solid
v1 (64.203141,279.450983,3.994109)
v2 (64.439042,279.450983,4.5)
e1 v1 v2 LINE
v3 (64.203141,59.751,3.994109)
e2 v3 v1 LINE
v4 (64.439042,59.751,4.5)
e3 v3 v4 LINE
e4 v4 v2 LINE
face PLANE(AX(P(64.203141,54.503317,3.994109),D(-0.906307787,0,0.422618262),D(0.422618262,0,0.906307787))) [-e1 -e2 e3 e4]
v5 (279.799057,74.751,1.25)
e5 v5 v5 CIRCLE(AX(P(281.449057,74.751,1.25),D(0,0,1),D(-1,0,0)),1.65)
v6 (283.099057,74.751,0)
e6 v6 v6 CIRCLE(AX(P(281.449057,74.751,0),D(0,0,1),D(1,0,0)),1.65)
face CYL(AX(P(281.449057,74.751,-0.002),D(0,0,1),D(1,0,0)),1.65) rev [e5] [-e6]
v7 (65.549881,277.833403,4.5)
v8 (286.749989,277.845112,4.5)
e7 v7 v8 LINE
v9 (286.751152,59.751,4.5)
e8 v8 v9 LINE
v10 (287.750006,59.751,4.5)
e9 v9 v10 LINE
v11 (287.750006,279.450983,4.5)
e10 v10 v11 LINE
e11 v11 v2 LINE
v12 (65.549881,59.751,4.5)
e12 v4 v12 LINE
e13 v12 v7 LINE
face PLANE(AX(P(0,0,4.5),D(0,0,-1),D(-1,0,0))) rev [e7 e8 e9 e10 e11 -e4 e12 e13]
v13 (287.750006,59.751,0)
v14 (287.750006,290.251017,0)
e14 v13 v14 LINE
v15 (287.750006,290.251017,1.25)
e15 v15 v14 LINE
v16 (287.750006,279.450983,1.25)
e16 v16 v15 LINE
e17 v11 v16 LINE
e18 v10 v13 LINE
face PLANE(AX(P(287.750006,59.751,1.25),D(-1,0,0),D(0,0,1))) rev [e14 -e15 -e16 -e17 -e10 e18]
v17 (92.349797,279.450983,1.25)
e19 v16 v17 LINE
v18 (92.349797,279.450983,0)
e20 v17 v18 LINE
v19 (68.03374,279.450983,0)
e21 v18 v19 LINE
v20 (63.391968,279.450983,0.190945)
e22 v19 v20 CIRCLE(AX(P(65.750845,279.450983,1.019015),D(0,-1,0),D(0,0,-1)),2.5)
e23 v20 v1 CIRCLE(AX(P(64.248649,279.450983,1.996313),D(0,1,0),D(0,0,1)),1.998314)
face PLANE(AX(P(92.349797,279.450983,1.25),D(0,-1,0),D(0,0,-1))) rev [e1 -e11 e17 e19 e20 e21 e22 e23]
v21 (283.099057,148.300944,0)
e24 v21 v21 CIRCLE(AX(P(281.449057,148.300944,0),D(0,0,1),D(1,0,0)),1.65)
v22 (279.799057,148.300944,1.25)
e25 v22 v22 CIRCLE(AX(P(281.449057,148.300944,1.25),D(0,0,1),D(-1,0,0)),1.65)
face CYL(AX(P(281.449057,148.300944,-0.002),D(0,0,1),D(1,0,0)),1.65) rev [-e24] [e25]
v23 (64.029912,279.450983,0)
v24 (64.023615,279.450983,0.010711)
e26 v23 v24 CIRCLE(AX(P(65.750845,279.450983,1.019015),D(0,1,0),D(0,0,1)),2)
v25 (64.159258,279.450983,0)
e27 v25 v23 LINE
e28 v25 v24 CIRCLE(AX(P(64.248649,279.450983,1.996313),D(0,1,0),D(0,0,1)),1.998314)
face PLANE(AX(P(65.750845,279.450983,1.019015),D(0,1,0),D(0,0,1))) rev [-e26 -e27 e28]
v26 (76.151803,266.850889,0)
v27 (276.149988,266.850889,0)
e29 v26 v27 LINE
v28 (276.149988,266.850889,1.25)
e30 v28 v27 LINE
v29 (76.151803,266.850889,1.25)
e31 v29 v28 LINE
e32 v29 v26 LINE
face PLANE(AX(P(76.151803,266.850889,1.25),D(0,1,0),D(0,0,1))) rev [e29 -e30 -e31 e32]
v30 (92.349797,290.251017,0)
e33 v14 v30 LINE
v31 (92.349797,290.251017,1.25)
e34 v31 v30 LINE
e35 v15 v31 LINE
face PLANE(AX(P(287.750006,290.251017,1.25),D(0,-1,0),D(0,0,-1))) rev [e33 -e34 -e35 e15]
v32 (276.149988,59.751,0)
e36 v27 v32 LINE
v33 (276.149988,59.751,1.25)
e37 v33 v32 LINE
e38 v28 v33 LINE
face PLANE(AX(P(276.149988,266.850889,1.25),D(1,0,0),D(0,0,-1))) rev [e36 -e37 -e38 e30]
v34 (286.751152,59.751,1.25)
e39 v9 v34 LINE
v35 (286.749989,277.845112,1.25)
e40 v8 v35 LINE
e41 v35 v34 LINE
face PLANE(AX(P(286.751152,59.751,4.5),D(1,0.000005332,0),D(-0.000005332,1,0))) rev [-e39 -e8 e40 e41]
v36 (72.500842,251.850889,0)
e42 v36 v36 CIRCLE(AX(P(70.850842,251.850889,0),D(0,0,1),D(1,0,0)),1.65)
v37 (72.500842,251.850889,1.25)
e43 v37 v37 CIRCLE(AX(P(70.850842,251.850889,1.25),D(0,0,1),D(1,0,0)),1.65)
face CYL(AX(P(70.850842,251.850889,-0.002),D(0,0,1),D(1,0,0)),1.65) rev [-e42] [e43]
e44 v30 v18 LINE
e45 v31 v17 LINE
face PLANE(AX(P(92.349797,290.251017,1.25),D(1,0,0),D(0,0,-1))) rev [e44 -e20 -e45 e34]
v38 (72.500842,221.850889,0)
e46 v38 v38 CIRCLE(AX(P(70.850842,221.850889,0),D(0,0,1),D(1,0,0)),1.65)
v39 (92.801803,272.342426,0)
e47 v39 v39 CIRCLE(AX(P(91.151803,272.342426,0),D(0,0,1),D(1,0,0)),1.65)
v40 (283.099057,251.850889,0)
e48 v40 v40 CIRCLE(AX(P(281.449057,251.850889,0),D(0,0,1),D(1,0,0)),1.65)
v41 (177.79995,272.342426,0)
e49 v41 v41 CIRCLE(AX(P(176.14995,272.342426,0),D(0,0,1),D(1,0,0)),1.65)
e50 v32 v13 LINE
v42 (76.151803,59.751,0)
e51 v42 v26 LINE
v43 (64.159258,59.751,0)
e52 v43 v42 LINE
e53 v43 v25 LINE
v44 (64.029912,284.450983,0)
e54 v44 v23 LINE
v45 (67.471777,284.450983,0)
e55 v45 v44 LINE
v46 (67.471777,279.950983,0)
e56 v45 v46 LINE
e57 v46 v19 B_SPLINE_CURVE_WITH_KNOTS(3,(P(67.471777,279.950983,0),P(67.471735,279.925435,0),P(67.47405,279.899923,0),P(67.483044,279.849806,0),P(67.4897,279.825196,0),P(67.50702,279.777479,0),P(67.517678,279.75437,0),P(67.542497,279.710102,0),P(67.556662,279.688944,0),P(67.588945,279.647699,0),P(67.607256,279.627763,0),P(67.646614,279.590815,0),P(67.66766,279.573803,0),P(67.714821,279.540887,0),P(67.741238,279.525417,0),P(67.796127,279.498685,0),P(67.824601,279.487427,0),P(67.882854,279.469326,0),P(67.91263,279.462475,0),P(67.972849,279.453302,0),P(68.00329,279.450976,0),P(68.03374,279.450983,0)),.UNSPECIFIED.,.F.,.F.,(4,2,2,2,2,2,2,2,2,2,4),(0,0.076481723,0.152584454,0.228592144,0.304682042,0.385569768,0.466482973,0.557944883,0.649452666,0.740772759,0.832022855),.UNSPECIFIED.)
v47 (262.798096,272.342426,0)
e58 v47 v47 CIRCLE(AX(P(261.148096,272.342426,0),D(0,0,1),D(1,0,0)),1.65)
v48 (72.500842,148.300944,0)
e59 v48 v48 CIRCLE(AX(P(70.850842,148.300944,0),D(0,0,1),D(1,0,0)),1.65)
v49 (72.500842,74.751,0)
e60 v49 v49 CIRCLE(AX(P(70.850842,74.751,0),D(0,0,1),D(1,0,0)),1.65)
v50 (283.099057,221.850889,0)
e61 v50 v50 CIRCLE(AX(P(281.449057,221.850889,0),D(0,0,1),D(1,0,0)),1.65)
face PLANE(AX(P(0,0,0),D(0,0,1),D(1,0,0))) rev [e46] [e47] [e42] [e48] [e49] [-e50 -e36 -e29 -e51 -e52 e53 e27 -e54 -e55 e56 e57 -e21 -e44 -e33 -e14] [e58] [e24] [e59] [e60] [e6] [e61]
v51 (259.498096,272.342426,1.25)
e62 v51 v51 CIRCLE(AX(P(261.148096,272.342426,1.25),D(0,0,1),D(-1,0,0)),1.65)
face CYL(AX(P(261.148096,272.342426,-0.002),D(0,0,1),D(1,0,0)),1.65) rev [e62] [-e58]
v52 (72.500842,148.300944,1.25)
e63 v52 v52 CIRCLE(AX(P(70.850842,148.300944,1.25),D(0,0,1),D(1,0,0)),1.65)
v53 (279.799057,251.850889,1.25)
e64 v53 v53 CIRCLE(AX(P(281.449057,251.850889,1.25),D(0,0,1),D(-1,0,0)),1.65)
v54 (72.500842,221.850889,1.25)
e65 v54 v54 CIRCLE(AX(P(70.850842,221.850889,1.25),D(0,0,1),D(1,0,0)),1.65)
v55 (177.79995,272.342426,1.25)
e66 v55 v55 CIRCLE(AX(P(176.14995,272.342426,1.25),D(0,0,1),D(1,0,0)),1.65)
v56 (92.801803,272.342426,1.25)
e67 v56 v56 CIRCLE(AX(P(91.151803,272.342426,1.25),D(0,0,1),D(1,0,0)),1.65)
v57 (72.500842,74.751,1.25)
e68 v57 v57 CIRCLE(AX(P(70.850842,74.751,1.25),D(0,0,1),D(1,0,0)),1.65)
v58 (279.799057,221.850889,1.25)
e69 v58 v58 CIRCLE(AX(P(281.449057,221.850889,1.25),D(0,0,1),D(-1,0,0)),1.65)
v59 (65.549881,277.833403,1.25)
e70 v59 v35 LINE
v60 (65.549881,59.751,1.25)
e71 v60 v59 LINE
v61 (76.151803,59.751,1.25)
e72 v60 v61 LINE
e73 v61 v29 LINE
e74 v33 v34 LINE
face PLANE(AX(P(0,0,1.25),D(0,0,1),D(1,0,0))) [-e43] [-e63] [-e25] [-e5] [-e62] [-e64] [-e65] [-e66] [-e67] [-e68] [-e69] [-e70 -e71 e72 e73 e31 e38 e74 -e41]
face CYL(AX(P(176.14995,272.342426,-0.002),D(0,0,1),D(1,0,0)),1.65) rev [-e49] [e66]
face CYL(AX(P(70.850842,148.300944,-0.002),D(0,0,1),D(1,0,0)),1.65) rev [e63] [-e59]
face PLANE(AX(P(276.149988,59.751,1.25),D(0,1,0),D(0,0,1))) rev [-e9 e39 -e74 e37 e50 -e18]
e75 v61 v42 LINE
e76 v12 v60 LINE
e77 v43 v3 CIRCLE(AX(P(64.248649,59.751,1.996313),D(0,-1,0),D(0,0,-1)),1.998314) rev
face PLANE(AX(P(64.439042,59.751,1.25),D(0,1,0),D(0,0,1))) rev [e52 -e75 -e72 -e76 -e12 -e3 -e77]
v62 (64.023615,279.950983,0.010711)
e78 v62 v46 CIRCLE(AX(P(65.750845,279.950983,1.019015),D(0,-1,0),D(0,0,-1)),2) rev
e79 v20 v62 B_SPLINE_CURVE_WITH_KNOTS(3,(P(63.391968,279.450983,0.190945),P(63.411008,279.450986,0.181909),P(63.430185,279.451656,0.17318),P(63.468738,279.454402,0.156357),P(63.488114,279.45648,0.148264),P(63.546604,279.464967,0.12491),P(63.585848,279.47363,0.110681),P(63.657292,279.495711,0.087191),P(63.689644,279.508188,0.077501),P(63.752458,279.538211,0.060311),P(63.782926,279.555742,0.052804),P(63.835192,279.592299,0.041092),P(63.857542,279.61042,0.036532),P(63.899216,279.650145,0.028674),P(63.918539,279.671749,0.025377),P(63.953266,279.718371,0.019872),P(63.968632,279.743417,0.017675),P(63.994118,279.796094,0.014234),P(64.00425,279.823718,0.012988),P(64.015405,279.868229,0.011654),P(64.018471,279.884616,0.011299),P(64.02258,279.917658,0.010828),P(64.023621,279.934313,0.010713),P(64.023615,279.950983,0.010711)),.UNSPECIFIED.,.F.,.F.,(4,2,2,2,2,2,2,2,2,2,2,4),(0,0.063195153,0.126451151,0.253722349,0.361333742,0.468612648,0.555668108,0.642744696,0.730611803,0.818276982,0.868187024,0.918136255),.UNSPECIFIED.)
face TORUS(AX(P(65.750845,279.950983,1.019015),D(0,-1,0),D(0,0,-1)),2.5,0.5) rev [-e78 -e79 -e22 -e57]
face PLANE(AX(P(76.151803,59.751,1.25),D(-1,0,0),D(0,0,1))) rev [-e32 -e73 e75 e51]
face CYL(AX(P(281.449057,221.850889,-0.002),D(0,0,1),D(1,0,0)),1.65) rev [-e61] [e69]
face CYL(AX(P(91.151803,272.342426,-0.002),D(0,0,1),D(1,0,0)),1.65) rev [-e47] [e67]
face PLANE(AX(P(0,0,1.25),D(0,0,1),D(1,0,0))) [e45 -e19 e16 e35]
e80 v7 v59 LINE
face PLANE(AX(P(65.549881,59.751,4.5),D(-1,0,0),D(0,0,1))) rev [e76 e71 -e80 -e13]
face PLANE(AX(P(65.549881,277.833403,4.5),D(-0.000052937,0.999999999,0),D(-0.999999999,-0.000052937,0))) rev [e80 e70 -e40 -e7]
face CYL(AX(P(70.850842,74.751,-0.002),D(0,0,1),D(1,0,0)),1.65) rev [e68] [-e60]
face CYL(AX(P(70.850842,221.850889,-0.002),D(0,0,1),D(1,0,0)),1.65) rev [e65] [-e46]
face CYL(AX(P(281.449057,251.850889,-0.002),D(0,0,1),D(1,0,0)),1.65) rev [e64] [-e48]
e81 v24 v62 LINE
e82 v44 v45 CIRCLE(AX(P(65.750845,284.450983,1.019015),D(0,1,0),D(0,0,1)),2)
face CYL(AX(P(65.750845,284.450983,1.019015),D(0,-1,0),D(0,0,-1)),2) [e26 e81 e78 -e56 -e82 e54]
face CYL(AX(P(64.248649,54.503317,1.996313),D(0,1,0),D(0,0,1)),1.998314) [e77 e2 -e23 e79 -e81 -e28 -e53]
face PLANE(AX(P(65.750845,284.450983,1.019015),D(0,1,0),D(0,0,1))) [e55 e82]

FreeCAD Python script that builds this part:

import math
import FreeCAD as App
import Part
import Sketcher

V = App.Vector
Q = App.Units.Quantity


def edges_at(feature, points):
    """Names of the edges that pass closest to the given points."""
    edges = feature.Shape.Edges
    near = lambda p: min(range(len(edges)), key=lambda i: edges[i].distToShape(Part.Vertex(*p))[0])
    return sorted({f"Edge{near(p) + 1}" for p in points})


def add_polygon(sketch, points):
    """Adds a closed chain of lines whose ends are joined by coincident constraints."""
    first, n = sketch.GeometryCount, len(points)
    for a, b in zip(points, points[1:] + points[:1]):
        sketch.addGeometry(Part.LineSegment(App.Vector(*a, 0), App.Vector(*b, 0)), False)
    for i in range(n):
        sketch.addConstraint(Sketcher.Constraint("Coincident", first + i, 2, first + (i + 1) % n, 1))

doc = App.newDocument("Part")
body = doc.addObject("PartDesign::Body", "Body")

# Sketch on XY plane
sketch1 = body.newObject("Sketcher::SketchObject", "Sketch")
sketch1.AttachmentSupport = (doc.getObject("XY_Plane"), [""])
sketch1.MapMode = "FlatFace"
add_polygon(sketch1, [(76.151803, 59.751), (76.151803, 266.850889), (276.149988, 266.850889), (276.149988, 59.751), (287.750006, 59.751), (287.750006, 290.251017), (92.349797, 290.251017), (92.349797, 279.450983), (64.949997, 279.450983), (64.439042, 59.751)])  # lines 0-9
sketch1.addConstraint([
    Sketcher.Constraint("Vertical", 0),
    Sketcher.Constraint("Horizontal", 1),
    Sketcher.Constraint("Vertical", 2),
    Sketcher.Constraint("Horizontal", 3),
    Sketcher.Constraint("Vertical", 4),
    Sketcher.Constraint("Horizontal", 5),
    Sketcher.Constraint("Vertical", 6),
    Sketcher.Constraint("Horizontal", 7),
    Sketcher.Constraint("Horizontal", 9),
    Sketcher.Constraint("Horizontal", 3, 2, 8, 2),
    Sketcher.Constraint("DistanceX", 7, 2, 7, 1, Q("27.399801 mm")),
    Sketcher.Constraint("DistanceY", -1, 1, 2, 2, Q("59.751 mm")),
    Sketcher.Constraint("DistanceX", 5, 2, 5, 1, Q("195.400208 mm")),
    Sketcher.Constraint("DistanceX", 9, 1, 9, 2, Q("11.712761 mm")),
    Sketcher.Constraint("DistanceY", 0, 1, 0, 2, Q("207.099888 mm")),
    Sketcher.Constraint("DistanceX", 1, 1, 1, 2, Q("199.998185 mm")),
    Sketcher.Constraint("DistanceX", 3, 1, 3, 2, Q("11.600018 mm")),
    Sketcher.Constraint("DistanceY", 4, 1, 4, 2, Q("230.500016 mm")),
    Sketcher.Constraint("DistanceY", 6, 2, 6, 1, Q("10.800034 mm")),
    Sketcher.Constraint("DistanceX", -1, 1, 1, 2, Q("276.149988 mm")),
])
pad1 = body.newObject("PartDesign::Pad", "Pad")
pad1.Profile = sketch1
pad1.Length = 1.25

# Sketch on XY plane
sketch2 = body.newObject("Sketcher::SketchObject", "Sketch001")
sketch2.AttachmentSupport = (doc.getObject("XY_Plane"), [""])
sketch2.MapMode = "FlatFace"
sketch2.AttachmentOffset = App.Placement(V(0, 0, 1.25), App.Rotation())
add_polygon(sketch2, [(65.549881, 59.751), (65.549881, 277.833403), (286.749989, 277.845112), (286.751152, 59.751), (287.750006, 59.751), (287.750006, 279.450983), (64.949997, 279.450983), (64.439042, 59.751)])  # lines 0-7
sketch2.addConstraint([
    Sketcher.Constraint("Vertical", 0),
    Sketcher.Constraint("Horizontal", 3),
    Sketcher.Constraint("Vertical", 4),
    Sketcher.Constraint("Horizontal", 5),
    Sketcher.Constraint("Horizontal", 7),
    Sketcher.Constraint("Horizontal", 3, 2, 6, 2),
    Sketcher.Constraint("DistanceY", -1, 1, 2, 2, Q("59.751 mm")),
    Sketcher.Constraint("DistanceX", 5, 2, 5, 1, Q("222.800009 mm")),
    Sketcher.Constraint("DistanceX", 7, 1, 7, 2, Q("1.110839 mm")),
    Sketcher.Constraint("Distance", 1, Q("221.200108 mm")),
    Sketcher.Constraint("Distance", 2, Q("218.094112 mm")),
    Sketcher.Constraint("DistanceX", 3, 1, 3, 2, Q("0.998854 mm")),
    Sketcher.Constraint("DistanceY", 0, 1, 0, 2, Q("218.082402 mm")),
    Sketcher.Constraint("DistanceY", 4, 1, 4, 2, Q("219.699983 mm")),
    Sketcher.Constraint("DistanceX", -1, 1, 0, 2, Q("65.549881 mm")),
    Sketcher.Constraint("DistanceX", -1, 1, 2, 2, Q("286.751152 mm")),
])
pad2 = body.newObject("PartDesign::Pad", "Pad001")
pad2.Profile = sketch2
pad2.Length = 3.25

# Sketch on XZ plane
sketch3 = body.newObject("Sketcher::SketchObject", "Sketch002")
sketch3.AttachmentSupport = (doc.getObject("XZ_Plane"), [""])
sketch3.MapMode = "FlatFace"
sketch3.AttachmentOffset = App.Placement(V(0, 0, -279.450983), App.Rotation())
sketch3.addGeometry([
    Part.LineSegment(V(64.203141, 3.994109, 0), V(64.439042, 4.5, 0)),  # 0
    Part.LineSegment(V(64.439042, 4.5, 0), V(64.949997, 4.5, 0)),  # 1
    Part.LineSegment(V(64.949997, 4.5, 0), V(64.949997, 0, 0)),  # 2
    Part.LineSegment(V(64.949997, 0, 0), V(64.159258, 0, 0)),  # 3
    Part.ArcOfCircle(Part.Circle(V(64.248649, 1.996313, 0), V(0, 0, 1), 1.998314), math.radians(91.304896), math.radians(267.436125)),  # 4
], False)
sketch3.addConstraint([
    Sketcher.Constraint("Coincident", 0, 2, 1, 1),
    Sketcher.Constraint("Coincident", 1, 2, 2, 1),
    Sketcher.Constraint("Coincident", 2, 2, 3, 1),
    Sketcher.Constraint("Coincident", 3, 2, 4, 2),
    Sketcher.Constraint("Coincident", 4, 1, 0, 1),
    Sketcher.Constraint("Horizontal", 1),
    Sketcher.Constraint("Vertical", 2),
    Sketcher.Constraint("Horizontal", 3),
    Sketcher.Constraint("PointOnObject", 2, 2, -1),
    Sketcher.Constraint("Angle", 0, Q("65 deg")),
    Sketcher.Constraint("DistanceY", 2, 2, 2, 1, Q("4.5 mm")),
    Sketcher.Constraint("Radius", 4, Q("1.998314 mm")),
    Sketcher.Constraint("DistanceX", 3, 2, 3, 1, Q("0.790739 mm")),
    Sketcher.Constraint("DistanceX", 4, 1, 0, 2, Q("0.235901 mm")),
    Sketcher.Constraint("DistanceX", 1, 1, 1, 2, Q("0.510954 mm")),
    Sketcher.Constraint("DistanceX", -1, 1, 4, 3, Q("64.248649 mm")),
])
pad3 = body.newObject("PartDesign::Pad", "Pad002")
pad3.Profile = sketch3
pad3.Length = 219.699983

# Sketch on XZ plane
sketch4 = body.newObject("Sketcher::SketchObject", "Sketch003")
sketch4.AttachmentSupport = (doc.getObject("XZ_Plane"), [""])
sketch4.MapMode = "FlatFace"
sketch4.AttachmentOffset = App.Placement(V(0, 0, -279.450983), App.Rotation())
sketch4.addGeometry([
    Part.LineSegment(V(67.471777, 0, 0), V(64.029912, 0, 0)),
    Part.ArcOfCircle(Part.Circle(V(65.750845, 1.019015, 0), V(0, 0, 1), 2), math.radians(-30.631018), math.radians(210.631018)),
], False)
sketch4.addConstraint([
    Sketcher.Constraint("Coincident", 0, 1, 1, 1),
    Sketcher.Constraint("Coincident", 1, 2, 0, 2),
    Sketcher.Constraint("Horizontal", 0),
    Sketcher.Constraint("PointOnObject", 0, 1, -1),
    Sketcher.Constraint("Radius", 1, Q("2 mm")),
    Sketcher.Constraint("DistanceX", 0, 2, 0, 1, Q("3.441865 mm")),
    Sketcher.Constraint("DistanceX", -1, 1, 1, 3, Q("65.750845 mm")),
])
pad4 = body.newObject("PartDesign::Pad", "Pad003")
pad4.Profile = sketch4
pad4.Length = 5
pad4.Reversed = True
doc.recompute()

fillet = body.newObject("PartDesign::Fillet", "Fillet")
fillet.Base = (pad4, edges_at(pad4, [(65.757, 279.451, 3.019)]))
fillet.Radius = 0.5

# Sketch on XY plane
sketch5 = body.newObject("Sketcher::SketchObject", "Sketch004")
sketch5.AttachmentSupport = (doc.getObject("XY_Plane"), [""])
sketch5.MapMode = "FlatFace"
sketch5.AttachmentOffset = App.Placement(V(0, 0, 1.25), App.Rotation())
sketch5.addGeometry([
    Part.Circle(V(70.850842, 74.751, 0), V(0, 0, 1), 1.65),  # 0
    Part.Circle(V(70.850842, 251.850889, 0), V(0, 0, 1), 1.65),  # 1
    Part.Circle(V(70.850842, 221.850889, 0), V(0, 0, 1), 1.65),  # 2
    Part.Circle(V(70.850842, 148.300944, 0), V(0, 0, 1), 1.65),  # 3
    Part.Circle(V(91.151803, 272.342426, 0), V(0, 0, 1), 1.65),  # 4
    Part.Circle(V(176.14995, 272.342426, 0), V(0, 0, 1), 1.65),  # 5
    Part.Circle(V(261.148096, 272.342426, 0), V(0, 0, 1), 1.65),  # 6
    Part.Circle(V(281.449057, 251.850889, 0), V(0, 0, 1), 1.65),  # 7
    Part.Circle(V(281.449057, 221.850889, 0), V(0, 0, 1), 1.65),  # 8
    Part.Circle(V(281.449057, 148.300944, 0), V(0, 0, 1), 1.65),  # 9
    Part.Circle(V(281.449057, 74.751, 0), V(0, 0, 1), 1.65),  # 10
], False)
sketch5.addConstraint([
    Sketcher.Constraint("Equal", 0, 1),
    Sketcher.Constraint("Equal", 1, 2),
    Sketcher.Constraint("Equal", 2, 3),
    Sketcher.Constraint("Equal", 3, 4),
    Sketcher.Constraint("Equal", 4, 5),
    Sketcher.Constraint("Equal", 5, 6),
    Sketcher.Constraint("Equal", 6, 7),
    Sketcher.Constraint("Equal", 7, 8),
    Sketcher.Constraint("Equal", 8, 9),
    Sketcher.Constraint("Equal", 9, 10),
    Sketcher.Constraint("Horizontal", 4, 3, 5, 3),
    Sketcher.Constraint("Horizontal", 5, 3, 6, 3),
    Sketcher.Constraint("Horizontal", 1, 3, 7, 3),
    Sketcher.Constraint("Horizontal", 2, 3, 8, 3),
    Sketcher.Constraint("Horizontal", 3, 3, 9, 3),
    Sketcher.Constraint("Horizontal", 0, 3, 10, 3),
    Sketcher.Constraint("Vertical", 0, 3, 1, 3),
    Sketcher.Constraint("Vertical", 1, 3, 2, 3),
    Sketcher.Constraint("Vertical", 2, 3, 3, 3),
    Sketcher.Constraint("Vertical", 7, 3, 8, 3),
    Sketcher.Constraint("Vertical", 8, 3, 9, 3),
    Sketcher.Constraint("Vertical", 9, 3, 10, 3),
    Sketcher.Constraint("Diameter", 0, Q("3.3 mm")),
    Sketcher.Constraint("DistanceY", 2, 3, 1, 3, Q("30 mm")),
    Sketcher.Constraint("DistanceY", -1, 1, 0, 3, Q("74.751 mm")),
    Sketcher.Constraint("DistanceY", -1, 1, 1, 3, Q("251.850889 mm")),
    Sketcher.Constraint("DistanceX", -1, 1, 5, 3, Q("176.14995 mm")),
    Sketcher.Constraint("DistanceX", 1, 3, 4, 3, Q("20.300961 mm")),
    Sketcher.Constraint("DistanceY", 3, 3, 4, 3, Q("124.041482 mm")),
    Sketcher.Constraint("DistanceX", 6, 3, 7, 3, Q("20.300961 mm")),
    Sketcher.Constraint("DistanceX", -1, 1, 0, 3, Q("70.850842 mm")),
    Sketcher.Constraint("DistanceY", -1, 1, 3, 3, Q("148.300944 mm")),
    Sketcher.Constraint("DistanceX", -1, 1, 6, 3, Q("261.148096 mm")),
])
pocket1 = body.newObject("PartDesign::Pocket", "Pocket")
pocket1.Profile = sketch5
pocket1.Type = "ThroughAll"

doc.recompute()
